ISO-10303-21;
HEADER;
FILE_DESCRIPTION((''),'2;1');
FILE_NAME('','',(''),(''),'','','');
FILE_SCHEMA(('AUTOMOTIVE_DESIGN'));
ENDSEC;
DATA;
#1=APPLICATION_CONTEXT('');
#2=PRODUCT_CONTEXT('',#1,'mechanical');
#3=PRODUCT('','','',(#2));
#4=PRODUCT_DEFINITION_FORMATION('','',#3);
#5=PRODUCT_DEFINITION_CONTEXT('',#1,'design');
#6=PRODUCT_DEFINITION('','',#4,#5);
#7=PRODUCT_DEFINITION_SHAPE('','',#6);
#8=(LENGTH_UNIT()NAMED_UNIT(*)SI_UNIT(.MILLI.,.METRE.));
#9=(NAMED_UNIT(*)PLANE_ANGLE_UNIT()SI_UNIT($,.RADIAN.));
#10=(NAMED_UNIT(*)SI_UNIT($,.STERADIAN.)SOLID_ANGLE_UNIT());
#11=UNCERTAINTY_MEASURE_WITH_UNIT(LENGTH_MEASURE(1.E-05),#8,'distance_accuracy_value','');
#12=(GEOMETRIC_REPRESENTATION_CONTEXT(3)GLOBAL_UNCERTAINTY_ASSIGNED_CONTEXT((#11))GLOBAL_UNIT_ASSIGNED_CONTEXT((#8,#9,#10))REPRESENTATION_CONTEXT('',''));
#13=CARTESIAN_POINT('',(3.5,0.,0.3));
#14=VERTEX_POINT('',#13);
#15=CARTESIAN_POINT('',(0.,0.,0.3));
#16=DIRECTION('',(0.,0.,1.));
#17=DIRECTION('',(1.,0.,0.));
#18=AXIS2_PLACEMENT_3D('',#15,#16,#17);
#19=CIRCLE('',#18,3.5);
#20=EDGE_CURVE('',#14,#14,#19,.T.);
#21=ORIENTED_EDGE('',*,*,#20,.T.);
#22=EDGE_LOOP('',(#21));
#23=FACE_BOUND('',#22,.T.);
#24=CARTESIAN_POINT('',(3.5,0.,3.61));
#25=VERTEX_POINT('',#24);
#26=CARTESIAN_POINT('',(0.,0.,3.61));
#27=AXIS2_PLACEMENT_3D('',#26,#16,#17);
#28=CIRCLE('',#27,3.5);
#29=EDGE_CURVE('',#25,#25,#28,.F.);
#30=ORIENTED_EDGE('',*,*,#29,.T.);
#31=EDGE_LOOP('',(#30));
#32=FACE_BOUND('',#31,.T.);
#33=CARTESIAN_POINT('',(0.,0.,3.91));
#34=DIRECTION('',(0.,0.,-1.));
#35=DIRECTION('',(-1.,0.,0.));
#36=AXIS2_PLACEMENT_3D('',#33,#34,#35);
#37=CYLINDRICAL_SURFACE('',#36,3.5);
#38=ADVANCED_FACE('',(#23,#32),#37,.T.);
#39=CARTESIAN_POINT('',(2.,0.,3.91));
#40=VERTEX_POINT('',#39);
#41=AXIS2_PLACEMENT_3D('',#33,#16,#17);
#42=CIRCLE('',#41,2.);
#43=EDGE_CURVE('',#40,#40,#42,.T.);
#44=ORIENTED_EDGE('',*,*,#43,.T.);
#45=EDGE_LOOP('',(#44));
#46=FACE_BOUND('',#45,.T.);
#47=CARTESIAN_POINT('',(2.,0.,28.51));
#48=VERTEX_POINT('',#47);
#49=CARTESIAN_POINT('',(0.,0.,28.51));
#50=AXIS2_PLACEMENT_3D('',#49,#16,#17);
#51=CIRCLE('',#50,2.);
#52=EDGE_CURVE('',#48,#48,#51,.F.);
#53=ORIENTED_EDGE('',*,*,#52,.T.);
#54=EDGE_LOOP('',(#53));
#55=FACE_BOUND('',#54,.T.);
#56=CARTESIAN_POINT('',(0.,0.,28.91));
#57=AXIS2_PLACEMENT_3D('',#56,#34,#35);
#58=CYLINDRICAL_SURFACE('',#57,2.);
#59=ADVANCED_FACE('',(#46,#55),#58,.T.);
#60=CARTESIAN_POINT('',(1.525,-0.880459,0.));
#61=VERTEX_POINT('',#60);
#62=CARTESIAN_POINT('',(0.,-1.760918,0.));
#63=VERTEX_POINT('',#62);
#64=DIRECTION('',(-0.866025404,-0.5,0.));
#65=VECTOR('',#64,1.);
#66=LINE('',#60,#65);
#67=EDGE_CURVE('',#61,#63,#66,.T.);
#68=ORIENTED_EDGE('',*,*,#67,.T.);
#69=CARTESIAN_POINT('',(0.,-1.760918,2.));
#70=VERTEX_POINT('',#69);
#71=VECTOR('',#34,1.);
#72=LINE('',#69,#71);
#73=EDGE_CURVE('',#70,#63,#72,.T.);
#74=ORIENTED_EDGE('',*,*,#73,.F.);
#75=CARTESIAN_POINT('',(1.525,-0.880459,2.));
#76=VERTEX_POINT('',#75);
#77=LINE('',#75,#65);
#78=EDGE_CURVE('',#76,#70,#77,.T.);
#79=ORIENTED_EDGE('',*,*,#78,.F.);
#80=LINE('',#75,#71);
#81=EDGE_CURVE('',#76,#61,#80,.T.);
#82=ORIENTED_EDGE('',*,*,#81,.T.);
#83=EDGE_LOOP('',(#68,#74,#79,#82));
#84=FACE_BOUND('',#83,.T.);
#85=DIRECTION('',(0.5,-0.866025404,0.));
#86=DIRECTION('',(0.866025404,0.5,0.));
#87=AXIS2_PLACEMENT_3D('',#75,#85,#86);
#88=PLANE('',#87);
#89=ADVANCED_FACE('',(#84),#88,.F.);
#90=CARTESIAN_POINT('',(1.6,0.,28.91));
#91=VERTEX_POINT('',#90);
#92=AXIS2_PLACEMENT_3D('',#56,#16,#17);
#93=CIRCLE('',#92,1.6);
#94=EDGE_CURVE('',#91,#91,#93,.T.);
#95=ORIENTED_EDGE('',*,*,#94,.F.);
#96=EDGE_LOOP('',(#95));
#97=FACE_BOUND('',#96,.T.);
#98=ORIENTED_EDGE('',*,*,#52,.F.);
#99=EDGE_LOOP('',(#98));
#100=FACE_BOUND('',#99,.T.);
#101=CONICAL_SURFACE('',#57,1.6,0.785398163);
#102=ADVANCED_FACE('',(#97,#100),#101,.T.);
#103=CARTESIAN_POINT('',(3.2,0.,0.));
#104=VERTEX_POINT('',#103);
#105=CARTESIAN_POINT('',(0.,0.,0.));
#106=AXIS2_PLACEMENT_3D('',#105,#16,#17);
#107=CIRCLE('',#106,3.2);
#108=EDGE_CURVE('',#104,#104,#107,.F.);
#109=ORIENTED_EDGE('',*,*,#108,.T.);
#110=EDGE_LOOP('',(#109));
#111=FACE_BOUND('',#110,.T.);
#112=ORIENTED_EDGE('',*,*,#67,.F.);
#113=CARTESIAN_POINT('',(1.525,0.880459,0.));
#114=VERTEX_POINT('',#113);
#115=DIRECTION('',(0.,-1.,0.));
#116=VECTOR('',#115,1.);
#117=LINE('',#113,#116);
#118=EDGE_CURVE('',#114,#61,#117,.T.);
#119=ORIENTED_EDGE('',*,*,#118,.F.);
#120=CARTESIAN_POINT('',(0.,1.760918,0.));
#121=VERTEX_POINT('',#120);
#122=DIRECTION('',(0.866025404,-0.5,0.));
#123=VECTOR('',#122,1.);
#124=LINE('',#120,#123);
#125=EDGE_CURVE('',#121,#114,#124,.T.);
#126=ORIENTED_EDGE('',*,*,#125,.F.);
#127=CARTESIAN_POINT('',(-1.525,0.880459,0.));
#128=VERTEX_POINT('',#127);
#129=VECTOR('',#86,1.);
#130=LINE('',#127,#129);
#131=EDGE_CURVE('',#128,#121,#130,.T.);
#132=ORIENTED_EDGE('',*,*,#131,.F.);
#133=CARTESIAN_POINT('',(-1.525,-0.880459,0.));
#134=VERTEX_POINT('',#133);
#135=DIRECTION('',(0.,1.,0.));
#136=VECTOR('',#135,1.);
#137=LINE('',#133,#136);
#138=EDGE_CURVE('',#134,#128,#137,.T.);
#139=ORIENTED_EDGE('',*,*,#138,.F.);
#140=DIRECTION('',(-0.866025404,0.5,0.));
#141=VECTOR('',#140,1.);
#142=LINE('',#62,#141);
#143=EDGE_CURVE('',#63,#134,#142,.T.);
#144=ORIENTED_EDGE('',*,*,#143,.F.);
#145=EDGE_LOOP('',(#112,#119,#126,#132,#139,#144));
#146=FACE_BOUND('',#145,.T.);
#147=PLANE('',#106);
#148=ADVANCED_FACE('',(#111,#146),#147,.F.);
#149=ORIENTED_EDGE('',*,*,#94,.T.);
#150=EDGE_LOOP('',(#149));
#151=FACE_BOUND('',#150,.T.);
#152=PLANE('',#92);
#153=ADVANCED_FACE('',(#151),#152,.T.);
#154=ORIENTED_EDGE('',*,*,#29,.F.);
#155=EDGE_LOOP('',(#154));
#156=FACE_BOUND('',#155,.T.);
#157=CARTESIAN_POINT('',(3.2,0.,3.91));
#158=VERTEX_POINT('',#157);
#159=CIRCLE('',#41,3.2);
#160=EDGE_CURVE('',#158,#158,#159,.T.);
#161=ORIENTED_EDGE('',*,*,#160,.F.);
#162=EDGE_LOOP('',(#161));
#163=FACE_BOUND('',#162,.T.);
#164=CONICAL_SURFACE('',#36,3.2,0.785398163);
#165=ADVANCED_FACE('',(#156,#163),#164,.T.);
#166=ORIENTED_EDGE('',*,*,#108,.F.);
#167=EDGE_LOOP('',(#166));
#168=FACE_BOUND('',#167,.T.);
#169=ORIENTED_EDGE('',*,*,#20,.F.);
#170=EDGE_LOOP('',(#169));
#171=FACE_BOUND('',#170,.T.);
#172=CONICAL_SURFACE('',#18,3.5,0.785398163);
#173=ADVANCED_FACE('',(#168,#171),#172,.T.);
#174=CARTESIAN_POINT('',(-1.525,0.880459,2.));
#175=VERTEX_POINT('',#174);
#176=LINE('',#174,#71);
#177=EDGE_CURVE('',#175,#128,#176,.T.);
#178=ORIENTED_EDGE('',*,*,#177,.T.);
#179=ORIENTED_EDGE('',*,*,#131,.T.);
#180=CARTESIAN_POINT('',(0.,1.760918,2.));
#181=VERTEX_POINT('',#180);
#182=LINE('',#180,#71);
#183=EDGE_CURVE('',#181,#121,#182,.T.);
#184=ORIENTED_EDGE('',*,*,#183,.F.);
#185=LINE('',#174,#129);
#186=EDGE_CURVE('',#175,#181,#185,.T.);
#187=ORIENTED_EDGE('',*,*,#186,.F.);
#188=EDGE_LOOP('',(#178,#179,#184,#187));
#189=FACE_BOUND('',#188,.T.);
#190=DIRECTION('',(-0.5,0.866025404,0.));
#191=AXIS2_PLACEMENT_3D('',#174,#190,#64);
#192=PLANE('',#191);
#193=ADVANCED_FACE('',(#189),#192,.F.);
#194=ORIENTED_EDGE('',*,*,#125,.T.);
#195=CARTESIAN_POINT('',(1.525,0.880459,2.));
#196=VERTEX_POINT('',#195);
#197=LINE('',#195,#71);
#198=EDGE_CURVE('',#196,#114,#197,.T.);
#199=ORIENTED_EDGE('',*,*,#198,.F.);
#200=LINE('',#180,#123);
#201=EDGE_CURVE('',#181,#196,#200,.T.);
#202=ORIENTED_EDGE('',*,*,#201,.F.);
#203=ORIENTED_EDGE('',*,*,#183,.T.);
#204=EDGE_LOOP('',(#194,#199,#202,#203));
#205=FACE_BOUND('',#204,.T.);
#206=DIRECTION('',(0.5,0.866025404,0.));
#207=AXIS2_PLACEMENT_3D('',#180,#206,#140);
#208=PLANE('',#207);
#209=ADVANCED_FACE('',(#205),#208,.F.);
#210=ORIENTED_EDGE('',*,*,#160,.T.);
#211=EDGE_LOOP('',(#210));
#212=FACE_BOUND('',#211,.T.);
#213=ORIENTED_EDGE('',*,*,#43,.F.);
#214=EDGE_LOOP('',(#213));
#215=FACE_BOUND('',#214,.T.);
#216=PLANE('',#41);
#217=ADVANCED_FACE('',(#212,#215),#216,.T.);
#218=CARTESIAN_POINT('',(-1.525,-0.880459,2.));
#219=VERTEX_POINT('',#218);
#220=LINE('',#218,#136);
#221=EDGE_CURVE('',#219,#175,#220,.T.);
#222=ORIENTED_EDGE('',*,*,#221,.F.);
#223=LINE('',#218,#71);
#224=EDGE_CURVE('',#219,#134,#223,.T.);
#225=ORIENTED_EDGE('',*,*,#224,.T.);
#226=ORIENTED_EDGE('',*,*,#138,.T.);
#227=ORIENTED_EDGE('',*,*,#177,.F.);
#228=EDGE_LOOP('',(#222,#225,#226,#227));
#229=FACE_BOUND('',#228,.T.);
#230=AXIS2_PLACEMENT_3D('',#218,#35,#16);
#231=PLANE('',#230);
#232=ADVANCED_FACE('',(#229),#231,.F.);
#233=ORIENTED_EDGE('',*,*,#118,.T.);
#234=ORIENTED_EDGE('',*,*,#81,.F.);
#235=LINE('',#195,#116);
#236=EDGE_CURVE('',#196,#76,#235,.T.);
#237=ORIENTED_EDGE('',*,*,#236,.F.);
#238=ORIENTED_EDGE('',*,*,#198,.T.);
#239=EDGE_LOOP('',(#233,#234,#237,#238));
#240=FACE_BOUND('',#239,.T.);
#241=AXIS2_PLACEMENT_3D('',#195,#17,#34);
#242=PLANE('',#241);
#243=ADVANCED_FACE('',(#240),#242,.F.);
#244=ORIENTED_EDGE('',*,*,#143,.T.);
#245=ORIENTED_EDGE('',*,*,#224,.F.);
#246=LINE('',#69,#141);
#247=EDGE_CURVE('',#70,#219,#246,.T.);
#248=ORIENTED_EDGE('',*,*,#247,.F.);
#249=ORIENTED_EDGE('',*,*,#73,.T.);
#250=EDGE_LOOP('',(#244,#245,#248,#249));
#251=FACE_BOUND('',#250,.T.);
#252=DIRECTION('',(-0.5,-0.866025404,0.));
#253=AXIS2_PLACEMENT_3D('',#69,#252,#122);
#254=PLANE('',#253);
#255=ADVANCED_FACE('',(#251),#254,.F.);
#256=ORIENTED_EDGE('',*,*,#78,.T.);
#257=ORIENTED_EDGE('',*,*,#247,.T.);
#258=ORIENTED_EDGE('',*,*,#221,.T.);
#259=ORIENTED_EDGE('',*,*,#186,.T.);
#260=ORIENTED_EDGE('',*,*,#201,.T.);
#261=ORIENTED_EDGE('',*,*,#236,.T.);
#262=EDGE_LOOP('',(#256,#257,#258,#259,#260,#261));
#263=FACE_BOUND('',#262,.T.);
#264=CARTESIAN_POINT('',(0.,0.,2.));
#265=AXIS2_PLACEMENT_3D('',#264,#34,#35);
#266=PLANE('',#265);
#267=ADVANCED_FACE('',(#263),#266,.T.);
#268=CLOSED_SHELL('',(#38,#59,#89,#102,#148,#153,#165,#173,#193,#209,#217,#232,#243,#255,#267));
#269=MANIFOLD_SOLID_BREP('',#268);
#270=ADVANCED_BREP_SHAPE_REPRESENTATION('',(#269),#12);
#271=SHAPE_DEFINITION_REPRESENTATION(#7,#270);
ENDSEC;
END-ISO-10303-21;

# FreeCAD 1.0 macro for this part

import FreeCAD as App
import Part
import Sketcher

V = App.Vector
Q = App.Units.Quantity


def edges_at(feature, points):
    """Names of the edges that pass closest to the given points."""
    edges = feature.Shape.Edges
    near = lambda p: min(range(len(edges)), key=lambda i: edges[i].distToShape(Part.Vertex(*p))[0])
    return sorted({f"Edge{near(p) + 1}" for p in points})


def add_polygon(sketch, points):
    """Adds a closed chain of lines whose ends are joined by coincident constraints."""
    first, n = sketch.GeometryCount, len(points)
    for a, b in zip(points, points[1:] + points[:1]):
        sketch.addGeometry(Part.LineSegment(App.Vector(*a, 0), App.Vector(*b, 0)), False)
    for i in range(n):
        sketch.addConstraint(Sketcher.Constraint("Coincident", first + i, 2, first + (i + 1) % n, 1))

doc = App.newDocument("Part")
params = doc.addObject("Spreadsheet::Sheet", "Params")
for row, (alias, value) in enumerate([
    ("sketch1_diameter", "7 mm"),
    ("pad1_length", "3.91 mm"),
    ("sketch2_diameter", "4 mm"),
    ("pad2_length", "25 mm"),
    ("pocket1_length", "2 mm"),
    ("chamfer_size", "0.4 mm"),
    ("chamfer2_size", "0.3 mm"),
], start=1):
    params.set(f"A{row}", alias)
    params.set(f"B{row}", "=" + value)
    params.setAlias(f"B{row}", alias)

body = doc.addObject("PartDesign::Body", "Body")

# Sketch on XY plane
sketch1 = body.newObject("Sketcher::SketchObject", "Sketch")
sketch1.AttachmentSupport = (doc.getObject("XY_Plane"), [""])
sketch1.MapMode = "FlatFace"
sketch1.addGeometry(Part.Circle(V(0, 0, 0), V(0, 0, 1), 3.5), False)
sketch1.addConstraint([
    Sketcher.Constraint("Coincident", 0, 3, -1, 1),
    Sketcher.Constraint("Diameter", 0, Q("7 mm")),
])
sketch1.setExpression("Constraints[1]", "Params.sketch1_diameter")
pad1 = body.newObject("PartDesign::Pad", "Pad")
pad1.Profile = sketch1
pad1.setExpression("Length", "Params.pad1_length")

# Sketch on XY plane
sketch2 = body.newObject("Sketcher::SketchObject", "Sketch001")
sketch2.AttachmentSupport = (doc.getObject("XY_Plane"), [""])
sketch2.MapMode = "FlatFace"
sketch2.AttachmentOffset = App.Placement(V(0, 0, 3.91), App.Rotation())
sketch2.addGeometry(Part.Circle(V(0, 0, 0), V(0, 0, 1), 2), False)
sketch2.addConstraint([
    Sketcher.Constraint("Coincident", 0, 3, -1, 1),
    Sketcher.Constraint("Diameter", 0, Q("4 mm")),
])
sketch2.setExpression("Constraints[1]", "Params.sketch2_diameter")
pad2 = body.newObject("PartDesign::Pad", "Pad001")
pad2.Profile = sketch2
pad2.setExpression("Length", "Params.pad2_length")

# Sketch on XY plane
sketch3 = body.newObject("Sketcher::SketchObject", "Sketch002")
sketch3.AttachmentSupport = (doc.getObject("XY_Plane"), [""])
sketch3.MapMode = "FlatFace"
add_polygon(sketch3, [(0, 1.8), (1.5, 0.9), (1.5, -0.9), (0, -1.8), (-1.5, -0.9), (-1.5, 0.9)])  # lines 0-5
sketch3.addConstraint([
    Sketcher.Constraint("Vertical", 1),
    Sketcher.Constraint("Vertical", 4),
    Sketcher.Constraint("Symmetric", 0, 2, 3, 2, -1, 1),
    Sketcher.Constraint("Symmetric", 2, 2, 5, 2, -1, 1),
    Sketcher.Constraint("PointOnObject", 2, 2, -2),
    Sketcher.Constraint("Parallel", 2, 5),
    Sketcher.Constraint("Horizontal", 1, 2, 3, 2),
    Sketcher.Constraint("Angle", 0, Q("-30 deg")),
    Sketcher.Constraint("DistanceX", 3, 2, 1, 2, Q("3.05 mm")),
    Sketcher.Constraint("DistanceY", 1, 2, 1, 1, Q("1.760918 mm")),
])
pocket1 = body.newObject("PartDesign::Pocket", "Pocket")
pocket1.Profile = sketch3
pocket1.setExpression("Length", "Params.pocket1_length")
pocket1.Reversed = True
doc.recompute()

chamfer = body.newObject("PartDesign::Chamfer", "Chamfer")
chamfer.Base = (pocket1, edges_at(pocket1, [(-2, 0, 28.91)]))
chamfer.setExpression("Size", "Params.chamfer_size")
doc.recompute()

chamfer2 = body.newObject("PartDesign::Chamfer", "Chamfer001")
chamfer2.Base = (chamfer, edges_at(chamfer, [(-3.5, 0, 0), (-3.5, 0, 3.91)]))
chamfer2.setExpression("Size", "Params.chamfer2_size")

doc.recompute()
